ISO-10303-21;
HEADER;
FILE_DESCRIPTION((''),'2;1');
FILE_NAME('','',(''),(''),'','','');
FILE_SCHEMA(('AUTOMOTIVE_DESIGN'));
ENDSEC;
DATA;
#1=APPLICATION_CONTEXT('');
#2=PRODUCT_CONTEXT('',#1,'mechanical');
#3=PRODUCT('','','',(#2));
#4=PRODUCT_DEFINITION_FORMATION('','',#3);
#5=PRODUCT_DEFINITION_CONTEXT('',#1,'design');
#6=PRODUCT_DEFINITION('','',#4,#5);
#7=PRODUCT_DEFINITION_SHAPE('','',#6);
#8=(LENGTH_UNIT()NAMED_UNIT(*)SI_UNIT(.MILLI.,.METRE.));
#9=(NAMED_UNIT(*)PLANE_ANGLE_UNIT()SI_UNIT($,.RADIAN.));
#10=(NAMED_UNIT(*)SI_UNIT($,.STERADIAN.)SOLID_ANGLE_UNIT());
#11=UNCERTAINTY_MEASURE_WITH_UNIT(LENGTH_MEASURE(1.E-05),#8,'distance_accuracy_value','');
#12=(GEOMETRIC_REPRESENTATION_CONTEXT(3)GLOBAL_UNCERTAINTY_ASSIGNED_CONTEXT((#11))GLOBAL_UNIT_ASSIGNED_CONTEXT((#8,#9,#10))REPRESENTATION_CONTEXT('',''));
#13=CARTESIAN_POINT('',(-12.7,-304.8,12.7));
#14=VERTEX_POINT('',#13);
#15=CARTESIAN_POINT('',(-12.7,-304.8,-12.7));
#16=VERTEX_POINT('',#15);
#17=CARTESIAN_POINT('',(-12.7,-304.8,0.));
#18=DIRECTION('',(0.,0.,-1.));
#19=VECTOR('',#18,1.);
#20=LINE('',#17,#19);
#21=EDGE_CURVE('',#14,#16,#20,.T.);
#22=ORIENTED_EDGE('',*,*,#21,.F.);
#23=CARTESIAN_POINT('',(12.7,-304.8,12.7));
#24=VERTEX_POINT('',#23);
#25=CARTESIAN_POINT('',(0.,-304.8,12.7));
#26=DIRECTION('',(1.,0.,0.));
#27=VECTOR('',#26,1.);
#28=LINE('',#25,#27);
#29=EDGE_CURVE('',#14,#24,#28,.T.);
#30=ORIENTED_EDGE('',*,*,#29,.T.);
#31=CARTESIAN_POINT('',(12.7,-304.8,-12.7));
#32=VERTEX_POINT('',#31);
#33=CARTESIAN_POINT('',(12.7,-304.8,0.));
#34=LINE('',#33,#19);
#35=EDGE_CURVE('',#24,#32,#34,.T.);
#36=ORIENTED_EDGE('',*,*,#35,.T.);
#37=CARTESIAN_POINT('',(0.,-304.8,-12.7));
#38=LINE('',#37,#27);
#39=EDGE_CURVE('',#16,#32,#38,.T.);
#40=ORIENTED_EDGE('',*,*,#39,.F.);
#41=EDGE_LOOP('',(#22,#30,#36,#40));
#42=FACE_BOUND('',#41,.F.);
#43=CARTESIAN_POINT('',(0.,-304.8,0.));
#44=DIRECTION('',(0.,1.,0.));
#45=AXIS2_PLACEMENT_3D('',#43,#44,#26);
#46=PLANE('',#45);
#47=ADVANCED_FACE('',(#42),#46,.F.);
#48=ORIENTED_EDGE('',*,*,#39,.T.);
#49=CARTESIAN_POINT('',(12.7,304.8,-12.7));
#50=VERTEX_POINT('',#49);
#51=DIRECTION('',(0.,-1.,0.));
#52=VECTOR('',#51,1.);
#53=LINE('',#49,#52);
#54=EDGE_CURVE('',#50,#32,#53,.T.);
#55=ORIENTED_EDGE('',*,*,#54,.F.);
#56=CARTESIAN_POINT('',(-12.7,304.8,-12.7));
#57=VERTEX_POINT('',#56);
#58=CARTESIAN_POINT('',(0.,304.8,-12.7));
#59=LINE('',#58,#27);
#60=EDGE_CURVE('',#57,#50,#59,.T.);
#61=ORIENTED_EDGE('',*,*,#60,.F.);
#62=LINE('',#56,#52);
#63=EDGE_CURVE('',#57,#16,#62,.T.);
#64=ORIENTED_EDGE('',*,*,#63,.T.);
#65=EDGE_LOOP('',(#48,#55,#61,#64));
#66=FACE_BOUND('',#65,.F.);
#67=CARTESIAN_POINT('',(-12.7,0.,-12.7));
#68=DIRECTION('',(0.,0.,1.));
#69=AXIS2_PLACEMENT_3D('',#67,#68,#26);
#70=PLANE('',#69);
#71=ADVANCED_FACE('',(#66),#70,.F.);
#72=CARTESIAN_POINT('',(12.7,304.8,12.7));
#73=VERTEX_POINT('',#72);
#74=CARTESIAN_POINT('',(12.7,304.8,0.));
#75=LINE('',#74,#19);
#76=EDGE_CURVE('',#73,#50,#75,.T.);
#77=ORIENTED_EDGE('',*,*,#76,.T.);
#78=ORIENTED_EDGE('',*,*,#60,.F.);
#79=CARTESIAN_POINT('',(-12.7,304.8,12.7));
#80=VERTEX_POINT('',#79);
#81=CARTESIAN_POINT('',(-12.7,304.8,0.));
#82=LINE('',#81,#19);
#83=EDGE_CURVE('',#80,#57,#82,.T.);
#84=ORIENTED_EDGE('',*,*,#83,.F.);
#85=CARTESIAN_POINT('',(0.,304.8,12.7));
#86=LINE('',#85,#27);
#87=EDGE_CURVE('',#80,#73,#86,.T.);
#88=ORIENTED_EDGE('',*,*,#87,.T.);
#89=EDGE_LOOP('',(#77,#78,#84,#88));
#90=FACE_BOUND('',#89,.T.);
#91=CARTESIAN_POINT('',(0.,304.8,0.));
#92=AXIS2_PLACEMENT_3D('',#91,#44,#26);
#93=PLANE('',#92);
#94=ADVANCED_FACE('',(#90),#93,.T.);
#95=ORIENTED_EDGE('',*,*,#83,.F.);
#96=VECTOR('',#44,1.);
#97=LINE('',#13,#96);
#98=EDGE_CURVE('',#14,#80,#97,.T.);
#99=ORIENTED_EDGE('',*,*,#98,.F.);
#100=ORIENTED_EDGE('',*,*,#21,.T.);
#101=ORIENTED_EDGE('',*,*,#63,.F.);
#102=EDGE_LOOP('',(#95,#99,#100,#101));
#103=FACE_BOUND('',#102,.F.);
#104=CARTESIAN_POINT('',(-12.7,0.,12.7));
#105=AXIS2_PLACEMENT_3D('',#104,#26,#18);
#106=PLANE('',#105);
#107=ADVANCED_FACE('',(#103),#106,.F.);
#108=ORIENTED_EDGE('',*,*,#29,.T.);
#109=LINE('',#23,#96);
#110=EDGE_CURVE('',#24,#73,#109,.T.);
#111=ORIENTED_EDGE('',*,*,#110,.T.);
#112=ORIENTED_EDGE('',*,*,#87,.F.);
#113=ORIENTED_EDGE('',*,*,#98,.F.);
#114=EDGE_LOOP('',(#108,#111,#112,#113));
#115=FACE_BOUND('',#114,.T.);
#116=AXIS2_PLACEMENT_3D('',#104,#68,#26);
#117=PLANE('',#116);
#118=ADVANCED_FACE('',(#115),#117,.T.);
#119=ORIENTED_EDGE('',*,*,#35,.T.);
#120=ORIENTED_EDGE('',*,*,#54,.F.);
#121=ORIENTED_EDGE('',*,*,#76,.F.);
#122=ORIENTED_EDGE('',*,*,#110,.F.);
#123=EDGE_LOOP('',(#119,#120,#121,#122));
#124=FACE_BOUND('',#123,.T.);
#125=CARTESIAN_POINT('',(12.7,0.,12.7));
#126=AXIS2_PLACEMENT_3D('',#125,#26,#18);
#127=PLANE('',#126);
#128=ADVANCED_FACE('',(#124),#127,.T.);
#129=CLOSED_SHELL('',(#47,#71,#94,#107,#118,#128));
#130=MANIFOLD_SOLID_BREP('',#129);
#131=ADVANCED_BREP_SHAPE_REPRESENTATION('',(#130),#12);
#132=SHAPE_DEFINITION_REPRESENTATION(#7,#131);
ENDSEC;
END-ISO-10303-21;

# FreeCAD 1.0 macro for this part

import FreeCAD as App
import Part
import Sketcher
from FreeCAD import Vector
Q = App.Units.Quantity

doc = App.newDocument("Part")
body = doc.addObject("PartDesign::Body", "Body")

sketch1 = body.newObject("Sketcher::SketchObject", "Sketch")
sketch1.AttachmentSupport = (doc.getObject("XZ_Plane"), [""])
sketch1.MapMode = "FlatFace"
sketch1.addGeometry(Part.LineSegment(Vector(-13, -13, 0), Vector(-13, 13, 0)), False)
sketch1.addGeometry(Part.LineSegment(Vector(-13, 13, 0), Vector(13, 13, 0)), False)
sketch1.addGeometry(Part.LineSegment(Vector(13, 13, 0), Vector(13, -13, 0)), False)
sketch1.addGeometry(Part.LineSegment(Vector(13, -13, 0), Vector(-13, -13, 0)), False)
sketch1.addConstraint(Sketcher.Constraint("Coincident", 0, 2, 1, 1))
sketch1.addConstraint(Sketcher.Constraint("Coincident", 1, 2, 2, 1))
sketch1.addConstraint(Sketcher.Constraint("Coincident", 2, 2, 3, 1))
sketch1.addConstraint(Sketcher.Constraint("Coincident", 3, 2, 0, 1))
sketch1.addConstraint(Sketcher.Constraint("Vertical", 0))
sketch1.addConstraint(Sketcher.Constraint("Horizontal", 1))
sketch1.addConstraint(Sketcher.Constraint("Vertical", 2))
sketch1.addConstraint(Sketcher.Constraint("Horizontal", 3))
sketch1.addConstraint(Sketcher.Constraint("Symmetric", 0, 2, 2, 2, -1, 1))
sketch1.addConstraint(Sketcher.Constraint("Equal", 3, 0))
sketch1.addConstraint(Sketcher.Constraint("DistanceX", 1, 1, 1, 2, Q("1 in")))
pad1 = body.newObject("PartDesign::Pad", "Pad")
pad1.Profile = sketch1
pad1.Length = Q("24 in")
pad1.Midplane = True

doc.recompute()
